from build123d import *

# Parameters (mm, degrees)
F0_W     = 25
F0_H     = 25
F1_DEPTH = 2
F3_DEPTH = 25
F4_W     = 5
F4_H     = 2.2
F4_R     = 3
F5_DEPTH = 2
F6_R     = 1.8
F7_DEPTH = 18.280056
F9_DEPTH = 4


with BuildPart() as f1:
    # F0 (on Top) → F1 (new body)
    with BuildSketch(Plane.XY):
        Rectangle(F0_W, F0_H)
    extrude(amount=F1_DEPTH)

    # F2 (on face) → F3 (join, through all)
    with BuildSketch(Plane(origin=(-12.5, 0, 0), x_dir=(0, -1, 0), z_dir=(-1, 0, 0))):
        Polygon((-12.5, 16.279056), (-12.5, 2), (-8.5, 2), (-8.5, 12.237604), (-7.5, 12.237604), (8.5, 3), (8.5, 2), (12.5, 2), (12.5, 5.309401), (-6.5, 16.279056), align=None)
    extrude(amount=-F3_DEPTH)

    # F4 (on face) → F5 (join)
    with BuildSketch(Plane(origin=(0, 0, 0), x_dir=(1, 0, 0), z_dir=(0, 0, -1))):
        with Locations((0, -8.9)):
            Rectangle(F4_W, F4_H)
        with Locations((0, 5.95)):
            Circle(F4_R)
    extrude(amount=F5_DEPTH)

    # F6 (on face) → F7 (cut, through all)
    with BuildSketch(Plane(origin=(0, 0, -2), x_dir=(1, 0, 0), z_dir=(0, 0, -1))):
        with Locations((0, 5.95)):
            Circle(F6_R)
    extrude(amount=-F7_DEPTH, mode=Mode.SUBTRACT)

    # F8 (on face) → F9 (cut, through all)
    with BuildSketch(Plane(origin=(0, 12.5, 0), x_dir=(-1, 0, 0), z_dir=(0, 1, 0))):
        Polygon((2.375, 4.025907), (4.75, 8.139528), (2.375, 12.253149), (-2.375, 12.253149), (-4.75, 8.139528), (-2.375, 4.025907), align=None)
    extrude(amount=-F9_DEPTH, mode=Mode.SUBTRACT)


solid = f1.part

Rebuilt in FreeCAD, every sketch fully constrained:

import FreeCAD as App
import Part
import Sketcher
from FreeCAD import Vector
Q = App.Units.Quantity

doc = App.newDocument("Part")
body = doc.addObject("PartDesign::Body", "Body")

# Sketch on XY plane
sketch1 = body.newObject("Sketcher::SketchObject", "Sketch")
sketch1.AttachmentSupport = (doc.getObject("XY_Plane"), [""])
sketch1.MapMode = "FlatFace"
sketch1.addGeometry([
    Part.LineSegment(Vector(-12, 12, 0), Vector(-12, -12, 0)),
    Part.LineSegment(Vector(-12, -12, 0), Vector(12, -12, 0)),
    Part.LineSegment(Vector(12, -12, 0), Vector(12, 12, 0)),
    Part.LineSegment(Vector(12, 12, 0), Vector(-12, 12, 0)),
], False)
sketch1.addConstraint([
    Sketcher.Constraint("Coincident", 0, 2, 1, 1),
    Sketcher.Constraint("Coincident", 1, 2, 2, 1),
    Sketcher.Constraint("Coincident", 2, 2, 3, 1),
    Sketcher.Constraint("Coincident", 3, 2, 0, 1),
    Sketcher.Constraint("Vertical", 0),
    Sketcher.Constraint("Horizontal", 1),
    Sketcher.Constraint("Vertical", 2),
    Sketcher.Constraint("Horizontal", 3),
    Sketcher.Constraint("Symmetric", 0, 2, 2, 2, -1, 1),
    Sketcher.Constraint("Equal", 3, 0),
    Sketcher.Constraint("DistanceX", 1, 1, 1, 2, Q("25 mm")),
])
pad1 = body.newObject("PartDesign::Pad", "Pad")
pad1.Profile = sketch1
pad1.Length = 2

# Sketch on YZ plane
sketch2 = body.newObject("Sketcher::SketchObject", "Sketch001")
sketch2.AttachmentSupport = (doc.getObject("YZ_Plane"), [""])
sketch2.MapMode = "FlatFace"
sketch2.AttachmentOffset = App.Placement(Vector(0, 0, -12.5), App.Rotation())
sketch2.addGeometry([
    Part.LineSegment(Vector(12.5, 16.3, 0), Vector(12.5, 2, 0)),  # 0
    Part.LineSegment(Vector(12.5, 2, 0), Vector(8.5, 2, 0)),  # 1
    Part.LineSegment(Vector(8.5, 2, 0), Vector(8.5, 12.2, 0)),  # 2
    Part.LineSegment(Vector(8.5, 12.2, 0), Vector(7.5, 12.2, 0)),  # 3
    Part.LineSegment(Vector(7.5, 12.2, 0), Vector(-8.5, 3, 0)),  # 4
    Part.LineSegment(Vector(-8.5, 3, 0), Vector(-8.5, 2, 0)),  # 5
    Part.LineSegment(Vector(-8.5, 2, 0), Vector(-12.5, 2, 0)),  # 6
    Part.LineSegment(Vector(-12.5, 2, 0), Vector(-12.5, 5.3, 0)),  # 7
    Part.LineSegment(Vector(-12.5, 5.3, 0), Vector(6.5, 16.3, 0)),  # 8
    Part.LineSegment(Vector(6.5, 16.3, 0), Vector(12.5, 16.3, 0)),  # 9
], False)
sketch2.addConstraint([
    Sketcher.Constraint("Coincident", 0, 2, 1, 1),
    Sketcher.Constraint("Coincident", 1, 2, 2, 1),
    Sketcher.Constraint("Coincident", 2, 2, 3, 1),
    Sketcher.Constraint("Coincident", 3, 2, 4, 1),
    Sketcher.Constraint("Coincident", 4, 2, 5, 1),
    Sketcher.Constraint("Coincident", 5, 2, 6, 1),
    Sketcher.Constraint("Coincident", 6, 2, 7, 1),
    Sketcher.Constraint("Coincident", 7, 2, 8, 1),
    Sketcher.Constraint("Coincident", 8, 2, 9, 1),
    Sketcher.Constraint("Coincident", 9, 2, 0, 1),
    Sketcher.Constraint("Vertical", 0),
    Sketcher.Constraint("Horizontal", 1),
    Sketcher.Constraint("Vertical", 2),
    Sketcher.Constraint("Horizontal", 3),
    Sketcher.Constraint("Vertical", 5),
    Sketcher.Constraint("Horizontal", 6),
    Sketcher.Constraint("Vertical", 7),
    Sketcher.Constraint("Horizontal", 9),
    Sketcher.Constraint("Symmetric", 1, 2, 5, 2, -2),
    Sketcher.Constraint("Parallel", 4, 8),
    Sketcher.Constraint("Equal", 1, 6),
    Sketcher.Constraint("Equal", 3, 5),
    Sketcher.Constraint("DistanceX", 1, 2, 1, 1, Q("4 mm")),
    Sketcher.Constraint("DistanceX", 3, 2, 3, 1, Q("1 mm")),
    Sketcher.Constraint("DistanceX", 9, 1, 9, 2, Q("6 mm")),
    Sketcher.Constraint("Angle", 4, Q("-150.000001 deg")),
    Sketcher.Constraint("DistanceY", -1, 1, 0, 2, Q("2 mm")),
    Sketcher.Constraint("DistanceX", 4, 2, 1, 2, Q("17 mm")),
    Sketcher.Constraint("DistanceY", 7, 1, 7, 2, Q("3.309401 mm")),
])
pad2 = body.newObject("PartDesign::Pad", "Pad001")
pad2.Profile = sketch2
pad2.Length = 25

# Sketch on XY plane
sketch3 = body.newObject("Sketcher::SketchObject", "Sketch002")
sketch3.AttachmentSupport = (doc.getObject("XY_Plane"), [""])
sketch3.MapMode = "FlatFace"
sketch3.addGeometry([
    Part.LineSegment(Vector(-2.5, 7.8, 0), Vector(-2.5, 10, 0)),  # 0
    Part.LineSegment(Vector(-2.5, 10, 0), Vector(2.5, 10, 0)),  # 1
    Part.LineSegment(Vector(2.5, 10, 0), Vector(2.5, 7.8, 0)),  # 2
    Part.LineSegment(Vector(2.5, 7.8, 0), Vector(-2.5, 7.8, 0)),  # 3
    Part.Circle(Vector(0, -6, 0), Vector(0, 0, 1), 3),  # 4
], False)
sketch3.addConstraint([
    Sketcher.Constraint("Coincident", 0, 2, 1, 1),
    Sketcher.Constraint("Coincident", 1, 2, 2, 1),
    Sketcher.Constraint("Coincident", 2, 2, 3, 1),
    Sketcher.Constraint("Coincident", 3, 2, 0, 1),
    Sketcher.Constraint("Vertical", 0),
    Sketcher.Constraint("Horizontal", 1),
    Sketcher.Constraint("Vertical", 2),
    Sketcher.Constraint("Horizontal", 3),
    Sketcher.Constraint("PointOnObject", 4, 3, -2),
    Sketcher.Constraint("Diameter", 4, Q("6 mm")),
    Sketcher.Constraint("DistanceX", 1, 1, 1, 2, Q("5 mm")),
    Sketcher.Constraint("DistanceY", 0, 1, 0, 2, Q("2.2 mm")),
    Sketcher.Constraint("DistanceY", -1, 1, 0, 2, Q("10 mm")),
    Sketcher.Constraint("DistanceX", 0, 2, -1, 1, Q("2.5 mm")),
    Sketcher.Constraint("DistanceY", 4, 3, -1, 1, Q("5.95 mm")),
])
pad3 = body.newObject("PartDesign::Pad", "Pad002")
pad3.Profile = sketch3
pad3.Length = 2
pad3.Reversed = True

# Sketch on XY plane
sketch4 = body.newObject("Sketcher::SketchObject", "Sketch003")
sketch4.AttachmentSupport = (doc.getObject("XY_Plane"), [""])
sketch4.MapMode = "FlatFace"
sketch4.AttachmentOffset = App.Placement(Vector(0, 0, -2), App.Rotation())
sketch4.addGeometry(Part.Circle(Vector(0, -6, 0), Vector(0, 0, 1), 1.8), False)
sketch4.addConstraint([
    Sketcher.Constraint("PointOnObject", 0, 3, -2),
    Sketcher.Constraint("Diameter", 0, Q("3.6 mm")),
    Sketcher.Constraint("DistanceY", 0, 3, -1, 1, Q("5.95 mm")),
])
pocket1 = body.newObject("PartDesign::Pocket", "Pocket")
pocket1.Profile = sketch4
pocket1.Type = "ThroughAll"
pocket1.Reversed = True

# Sketch on XZ plane
sketch5 = body.newObject("Sketcher::SketchObject", "Sketch004")
sketch5.AttachmentSupport = (doc.getObject("XZ_Plane"), [""])
sketch5.MapMode = "FlatFace"
sketch5.AttachmentOffset = App.Placement(Vector(0, 0, -12.5), App.Rotation())
sketch5.addGeometry([
    Part.LineSegment(Vector(-2.4, 4, 0), Vector(-4.8, 8.1, 0)),  # 0
    Part.LineSegment(Vector(-4.8, 8.1, 0), Vector(-2.4, 12.3, 0)),  # 1
    Part.LineSegment(Vector(-2.4, 12.3, 0), Vector(2.4, 12.3, 0)),  # 2
    Part.LineSegment(Vector(2.4, 12.3, 0), Vector(4.8, 8.1, 0)),  # 3
    Part.LineSegment(Vector(4.8, 8.1, 0), Vector(2.4, 4, 0)),  # 4
    Part.LineSegment(Vector(2.4, 4, 0), Vector(-2.4, 4, 0)),  # 5
], False)
sketch5.addConstraint([
    Sketcher.Constraint("Coincident", 0, 2, 1, 1),
    Sketcher.Constraint("Coincident", 1, 2, 2, 1),
    Sketcher.Constraint("Coincident", 2, 2, 3, 1),
    Sketcher.Constraint("Coincident", 3, 2, 4, 1),
    Sketcher.Constraint("Coincident", 4, 2, 5, 1),
    Sketcher.Constraint("Coincident", 5, 2, 0, 1),
    Sketcher.Constraint("Horizontal", 2),
    Sketcher.Constraint("Horizontal", 5),
    Sketcher.Constraint("Symmetric", 0, 2, 3, 2, -2),
    Sketcher.Constraint("Parallel", 0, 3),
    Sketcher.Constraint("Parallel", 1, 4),
    Sketcher.Constraint("Vertical", 2, 2, 4, 2),
    Sketcher.Constraint("Vertical", 1, 2, 5, 2),
    Sketcher.Constraint("Angle", 0, Q("119.999998 deg")),
    Sketcher.Constraint("DistanceX", 2, 1, 2, 2, Q("4.75 mm")),
    Sketcher.Constraint("DistanceX", 0, 2, 3, 2, Q("9.5 mm")),
    Sketcher.Constraint("DistanceY", -1, 1, 1, 2, Q("12.253149 mm")),
])
pocket2 = body.newObject("PartDesign::Pocket", "Pocket001")
pocket2.Profile = sketch5
pocket2.Length = 4
pocket2.Reversed = True

doc.recompute()
